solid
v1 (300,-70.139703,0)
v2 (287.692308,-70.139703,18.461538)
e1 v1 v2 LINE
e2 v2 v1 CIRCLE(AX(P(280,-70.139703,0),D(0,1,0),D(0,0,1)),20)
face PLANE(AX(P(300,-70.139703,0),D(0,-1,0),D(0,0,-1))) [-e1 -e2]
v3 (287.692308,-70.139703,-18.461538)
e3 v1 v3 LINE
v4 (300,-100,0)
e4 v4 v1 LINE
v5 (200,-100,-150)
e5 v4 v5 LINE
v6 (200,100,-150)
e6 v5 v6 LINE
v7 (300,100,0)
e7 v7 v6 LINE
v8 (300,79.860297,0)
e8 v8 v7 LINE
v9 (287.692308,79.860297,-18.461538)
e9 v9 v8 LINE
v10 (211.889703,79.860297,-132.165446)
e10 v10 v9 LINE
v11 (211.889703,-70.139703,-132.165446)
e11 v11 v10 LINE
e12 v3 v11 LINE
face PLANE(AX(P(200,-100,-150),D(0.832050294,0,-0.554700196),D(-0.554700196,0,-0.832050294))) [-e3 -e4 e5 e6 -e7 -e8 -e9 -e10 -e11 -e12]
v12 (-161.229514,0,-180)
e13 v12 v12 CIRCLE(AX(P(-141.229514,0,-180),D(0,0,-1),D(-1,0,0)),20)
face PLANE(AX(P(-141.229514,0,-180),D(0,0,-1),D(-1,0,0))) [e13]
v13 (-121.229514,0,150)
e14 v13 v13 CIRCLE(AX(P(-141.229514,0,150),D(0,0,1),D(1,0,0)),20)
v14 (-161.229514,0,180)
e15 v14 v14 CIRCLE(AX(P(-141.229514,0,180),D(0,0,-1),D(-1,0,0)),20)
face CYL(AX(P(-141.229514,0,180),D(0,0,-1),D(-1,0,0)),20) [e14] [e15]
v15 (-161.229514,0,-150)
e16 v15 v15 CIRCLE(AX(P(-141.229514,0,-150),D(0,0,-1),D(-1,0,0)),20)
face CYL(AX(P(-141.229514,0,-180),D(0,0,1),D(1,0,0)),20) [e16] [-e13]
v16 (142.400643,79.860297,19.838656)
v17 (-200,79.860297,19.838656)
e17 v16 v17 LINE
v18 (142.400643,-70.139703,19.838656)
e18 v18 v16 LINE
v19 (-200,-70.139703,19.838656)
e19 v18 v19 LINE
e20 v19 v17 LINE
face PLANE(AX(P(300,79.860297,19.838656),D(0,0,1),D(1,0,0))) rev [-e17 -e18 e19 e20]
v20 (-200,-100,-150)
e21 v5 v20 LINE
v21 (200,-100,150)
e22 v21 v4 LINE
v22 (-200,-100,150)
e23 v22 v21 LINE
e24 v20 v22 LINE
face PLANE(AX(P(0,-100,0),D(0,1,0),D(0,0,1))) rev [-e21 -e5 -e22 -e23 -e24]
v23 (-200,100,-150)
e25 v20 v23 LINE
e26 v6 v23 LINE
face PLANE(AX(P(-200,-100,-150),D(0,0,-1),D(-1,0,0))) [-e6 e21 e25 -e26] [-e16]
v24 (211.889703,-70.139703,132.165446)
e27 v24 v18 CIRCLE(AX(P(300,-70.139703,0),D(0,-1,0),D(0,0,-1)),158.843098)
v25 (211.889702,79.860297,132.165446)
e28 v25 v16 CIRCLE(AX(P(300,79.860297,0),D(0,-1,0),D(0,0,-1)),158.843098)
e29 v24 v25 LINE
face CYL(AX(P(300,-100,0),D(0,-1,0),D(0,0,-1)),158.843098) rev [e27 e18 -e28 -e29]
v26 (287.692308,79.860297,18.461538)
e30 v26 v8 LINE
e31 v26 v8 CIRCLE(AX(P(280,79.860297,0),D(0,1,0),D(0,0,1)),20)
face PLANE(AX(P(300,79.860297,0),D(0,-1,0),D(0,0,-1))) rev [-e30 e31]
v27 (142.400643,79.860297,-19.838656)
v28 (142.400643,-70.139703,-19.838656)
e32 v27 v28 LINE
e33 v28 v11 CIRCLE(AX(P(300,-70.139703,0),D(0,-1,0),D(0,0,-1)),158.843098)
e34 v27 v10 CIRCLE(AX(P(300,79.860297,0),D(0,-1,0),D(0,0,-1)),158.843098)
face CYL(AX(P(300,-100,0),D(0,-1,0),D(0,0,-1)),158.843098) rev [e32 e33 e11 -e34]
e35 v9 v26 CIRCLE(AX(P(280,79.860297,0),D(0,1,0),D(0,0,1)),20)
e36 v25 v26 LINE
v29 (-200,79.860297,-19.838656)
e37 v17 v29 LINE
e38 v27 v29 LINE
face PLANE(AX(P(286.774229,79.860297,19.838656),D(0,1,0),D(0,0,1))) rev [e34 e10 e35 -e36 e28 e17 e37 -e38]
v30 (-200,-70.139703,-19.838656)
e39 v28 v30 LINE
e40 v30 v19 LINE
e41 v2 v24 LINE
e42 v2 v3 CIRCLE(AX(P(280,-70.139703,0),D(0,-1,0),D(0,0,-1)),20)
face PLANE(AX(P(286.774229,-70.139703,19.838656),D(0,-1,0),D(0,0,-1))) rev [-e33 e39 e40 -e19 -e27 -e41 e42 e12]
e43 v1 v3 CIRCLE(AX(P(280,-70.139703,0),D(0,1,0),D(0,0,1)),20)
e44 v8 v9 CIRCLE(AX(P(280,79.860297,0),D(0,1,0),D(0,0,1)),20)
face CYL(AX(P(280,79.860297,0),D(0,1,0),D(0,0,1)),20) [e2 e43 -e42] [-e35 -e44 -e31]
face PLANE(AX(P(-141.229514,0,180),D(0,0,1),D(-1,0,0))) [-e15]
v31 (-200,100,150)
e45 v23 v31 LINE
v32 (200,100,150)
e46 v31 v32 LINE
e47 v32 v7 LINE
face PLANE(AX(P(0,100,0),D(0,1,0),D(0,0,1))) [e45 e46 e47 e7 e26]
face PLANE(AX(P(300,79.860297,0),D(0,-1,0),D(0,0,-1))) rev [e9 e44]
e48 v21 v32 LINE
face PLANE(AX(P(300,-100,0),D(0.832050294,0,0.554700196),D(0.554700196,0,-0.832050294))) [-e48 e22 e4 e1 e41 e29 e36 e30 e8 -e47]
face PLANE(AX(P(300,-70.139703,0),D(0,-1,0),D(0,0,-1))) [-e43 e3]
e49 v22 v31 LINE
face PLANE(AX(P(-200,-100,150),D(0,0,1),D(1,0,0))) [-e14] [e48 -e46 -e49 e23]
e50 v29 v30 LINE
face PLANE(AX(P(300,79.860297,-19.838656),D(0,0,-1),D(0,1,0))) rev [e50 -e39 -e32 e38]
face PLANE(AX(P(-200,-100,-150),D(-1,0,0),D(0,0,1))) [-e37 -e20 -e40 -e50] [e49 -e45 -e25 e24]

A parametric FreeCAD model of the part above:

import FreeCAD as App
import Part
import Sketcher
from FreeCAD import Vector

doc = App.newDocument("Part")
body = doc.addObject("PartDesign::Body", "Body")

# Sketch on XZ plane
sketch1 = body.newObject("Sketcher::SketchObject", "Sketch")
sketch1.AttachmentSupport = (doc.getObject("XZ_Plane"), [""])
sketch1.MapMode = "FlatFace"
sketch1.addGeometry(Part.LineSegment(Vector(300, 0, 0), Vector(200, -150, 0)), False)
sketch1.addGeometry(Part.LineSegment(Vector(200, -150, 0), Vector(-200, -150, 0)), False)
sketch1.addGeometry(Part.LineSegment(Vector(-200, -150, 0), Vector(-200, 150, 0)), False)
sketch1.addGeometry(Part.LineSegment(Vector(-200, 150, 0), Vector(200, 150, 0)), False)
sketch1.addGeometry(Part.LineSegment(Vector(200, 150, 0), Vector(300, 0, 0)), False)
sketch1.addConstraint(Sketcher.Constraint("Coincident", 0, 2, 1, 1))
sketch1.addConstraint(Sketcher.Constraint("Coincident", 1, 2, 2, 1))
sketch1.addConstraint(Sketcher.Constraint("Coincident", 2, 2, 3, 1))
sketch1.addConstraint(Sketcher.Constraint("Coincident", 3, 2, 4, 1))
sketch1.addConstraint(Sketcher.Constraint("Coincident", 4, 2, 0, 1))
sketch1.addConstraint(Sketcher.Constraint("Horizontal", 1))
sketch1.addConstraint(Sketcher.Constraint("Vertical", 2))
sketch1.addConstraint(Sketcher.Constraint("Horizontal", 3))
sketch1.addConstraint(Sketcher.Constraint("Symmetric", 0, 2, 2, 2, -1, 1))
sketch1.addConstraint(Sketcher.Constraint("PointOnObject", 4, 2, -1))
sketch1.addConstraint(Sketcher.Constraint("Vertical", 0, 2, 3, 2))
sketch1.addConstraint(Sketcher.Constraint("DistanceX", 1, 2, 1, 1, 400.0))
sketch1.addConstraint(Sketcher.Constraint("DistanceY", 2, 1, 2, 2, 300.0))
sketch1.addConstraint(Sketcher.Constraint("DistanceX", -1, 1, 4, 2, 300.0))
pad1 = body.newObject("PartDesign::Pad", "Pad")
pad1.Profile = sketch1
pad1.Type = "TwoLengths"
pad1.Length = 100
pad1.Length2 = 100
pad1.Reversed = True

# Sketch on an angled plane
sketch2 = body.newObject("Sketcher::SketchObject", "Sketch001")
sketch2.Placement = App.Placement(Vector(207.692308, 0, -138.461538), App.Rotation(Vector(-0.554700196, 0, -0.832050294), Vector(0, 0.999999999, 0), Vector(0.832050294, 0, -0.554700196), "ZXY"))
sketch2.addGeometry(Part.LineSegment(Vector(-143, 80, 0), Vector(-143, -70, 0)), False)
sketch2.addGeometry(Part.LineSegment(Vector(-143, -70, 0), Vector(-8, -70, 0)), False)
sketch2.addGeometry(Part.LineSegment(Vector(-8, -70, 0), Vector(-8, 80, 0)), False)
sketch2.addGeometry(Part.LineSegment(Vector(-8, 80, 0), Vector(-143, 80, 0)), False)
sketch2.addGeometry(Part.LineSegment(Vector(-166, -70, 0), Vector(-166, 80, 0)), True)  # axis
sketch2.addConstraint(Sketcher.Constraint("Coincident", 0, 2, 1, 1))
sketch2.addConstraint(Sketcher.Constraint("Coincident", 1, 2, 2, 1))
sketch2.addConstraint(Sketcher.Constraint("Coincident", 2, 2, 3, 1))
sketch2.addConstraint(Sketcher.Constraint("Coincident", 3, 2, 0, 1))
sketch2.addConstraint(Sketcher.Constraint("Vertical", 0))
sketch2.addConstraint(Sketcher.Constraint("Horizontal", 1))
sketch2.addConstraint(Sketcher.Constraint("Vertical", 2))
sketch2.addConstraint(Sketcher.Constraint("Horizontal", 3))
sketch2.addConstraint(Sketcher.Constraint("Vertical", 4))
sketch2.addConstraint(Sketcher.Constraint("Horizontal", 1, 2, 4, 1))
sketch2.addConstraint(Sketcher.Constraint("Horizontal", 3, 2, 4, 2))
sketch2.addConstraint(Sketcher.Constraint("DistanceX", 1, 1, 1, 2, 135.0))
sketch2.addConstraint(Sketcher.Constraint("DistanceY", 0, 2, 0, 1, 150.0))
sketch2.addConstraint(Sketcher.Constraint("DistanceX", 0, 2, -1, 1, 142.566961))
sketch2.addConstraint(Sketcher.Constraint("DistanceX", 4, 1, -1, 1, 166.410059))
sketch2.addConstraint(Sketcher.Constraint("DistanceY", 0, 2, -1, 1, 70.139703))
groove = body.newObject("PartDesign::Groove", "Groove")
groove.Profile = sketch2
groove.ReferenceAxis = (sketch2, ["Axis0"])
groove.Angle = 112.619865

# Sketch on XY plane
sketch3 = body.newObject("Sketcher::SketchObject", "Sketch002")
sketch3.AttachmentSupport = (doc.getObject("XY_Plane"), [""])
sketch3.MapMode = "FlatFace"
sketch3.AttachmentOffset = App.Placement(Vector(0, 0, -150), App.Rotation())
sketch3.addGeometry(Part.Circle(Vector(-141, 0, 0), Vector(0, 0, 1), 20), False)
sketch3.addConstraint(Sketcher.Constraint("PointOnObject", 0, 3, -1))
sketch3.addConstraint(Sketcher.Constraint("Diameter", 0, 40.0))
sketch3.addConstraint(Sketcher.Constraint("DistanceX", 0, 3, -1, 1, 141.229514))
pad2 = body.newObject("PartDesign::Pad", "Pad001")
pad2.Profile = sketch3
pad2.Length = 30
pad2.Reversed = True
doc.recompute()

mirrored = body.newObject("PartDesign::Mirrored", "Mirrored")
mirrored.Originals = [pad2]
mirrored.MirrorPlane = (doc.getObject("XY_Plane"), [""])
body.Tip = mirrored

# Sketch on YZ plane
sketch4 = body.newObject("Sketcher::SketchObject", "Sketch003")
sketch4.AttachmentSupport = (doc.getObject("YZ_Plane"), [""])
sketch4.MapMode = "FlatFace"
sketch4.AttachmentOffset = App.Placement(Vector(0, 0, -200), App.Rotation())
sketch4.addGeometry(Part.LineSegment(Vector(80, -20, 0), Vector(-70, -20, 0)), False)
sketch4.addGeometry(Part.LineSegment(Vector(-70, -20, 0), Vector(-70, 20, 0)), False)
sketch4.addGeometry(Part.LineSegment(Vector(-70, 20, 0), Vector(80, 20, 0)), False)
sketch4.addGeometry(Part.LineSegment(Vector(80, 20, 0), Vector(80, -20, 0)), False)
sketch4.addConstraint(Sketcher.Constraint("Coincident", 0, 2, 1, 1))
sketch4.addConstraint(Sketcher.Constraint("Coincident", 1, 2, 2, 1))
sketch4.addConstraint(Sketcher.Constraint("Coincident", 2, 2, 3, 1))
sketch4.addConstraint(Sketcher.Constraint("Coincident", 3, 2, 0, 1))
sketch4.addConstraint(Sketcher.Constraint("Horizontal", 0))
sketch4.addConstraint(Sketcher.Constraint("Vertical", 1))
sketch4.addConstraint(Sketcher.Constraint("Horizontal", 2))
sketch4.addConstraint(Sketcher.Constraint("Vertical", 3))
sketch4.addConstraint(Sketcher.Constraint("DistanceX", 0, 2, 0, 1, 150.0))
sketch4.addConstraint(Sketcher.Constraint("DistanceY", 1, 1, 1, 2, 39.677313))
sketch4.addConstraint(Sketcher.Constraint("DistanceX", 0, 2, -1, 1, 70.139703))
sketch4.addConstraint(Sketcher.Constraint("DistanceY", 0, 2, -1, 1, 19.838656))
pocket1 = body.newObject("PartDesign::Pocket", "Pocket")
pocket1.Profile = sketch4
pocket1.Length = 500
pocket1.Reversed = True

# Sketch on XY plane
sketch5 = body.newObject("Sketcher::SketchObject", "Sketch004")
sketch5.AttachmentSupport = (doc.getObject("XY_Plane"), [""])
sketch5.MapMode = "FlatFace"
sketch5.addGeometry(Part.LineSegment(Vector(300, 80, 0), Vector(300, -70, 0)), False)
sketch5.addGeometry(Part.LineSegment(Vector(300, -70, 0), Vector(280, -70, 0)), False)
sketch5.addGeometry(Part.LineSegment(Vector(280, -70, 0), Vector(280, 80, 0)), False)
sketch5.addGeometry(Part.LineSegment(Vector(280, 80, 0), Vector(300, 80, 0)), False)
sketch5.addGeometry(Part.LineSegment(Vector(280, 80, 0), Vector(280, -70, 0)), True)  # axis
sketch5.addConstraint(Sketcher.Constraint("Coincident", 0, 2, 1, 1))
sketch5.addConstraint(Sketcher.Constraint("Coincident", 1, 2, 2, 1))
sketch5.addConstraint(Sketcher.Constraint("Coincident", 2, 2, 3, 1))
sketch5.addConstraint(Sketcher.Constraint("Coincident", 3, 2, 0, 1))
sketch5.addConstraint(Sketcher.Constraint("Vertical", 0))
sketch5.addConstraint(Sketcher.Constraint("Horizontal", 1))
sketch5.addConstraint(Sketcher.Constraint("Vertical", 2))
sketch5.addConstraint(Sketcher.Constraint("Horizontal", 3))
sketch5.addConstraint(Sketcher.Constraint("Vertical", 4))
sketch5.addConstraint(Sketcher.Constraint("Coincident", 4, 1, 2, 2))
sketch5.addConstraint(Sketcher.Constraint("Horizontal", 0, 2, 4, 2))
sketch5.addConstraint(Sketcher.Constraint("DistanceX", 1, 2, 1, 1, 20.0))
sketch5.addConstraint(Sketcher.Constraint("DistanceY", 0, 2, 0, 1, 150.0))
sketch5.addConstraint(Sketcher.Constraint("DistanceX", -1, 1, 0, 2, 300.0))
sketch5.addConstraint(Sketcher.Constraint("DistanceY", 0, 2, -1, 1, 70.139703))
revolution = body.newObject("PartDesign::Revolution", "Revolution")
revolution.Profile = sketch5
revolution.ReferenceAxis = (sketch5, ["Axis0"])
revolution.Angle = 360

doc.recompute()
